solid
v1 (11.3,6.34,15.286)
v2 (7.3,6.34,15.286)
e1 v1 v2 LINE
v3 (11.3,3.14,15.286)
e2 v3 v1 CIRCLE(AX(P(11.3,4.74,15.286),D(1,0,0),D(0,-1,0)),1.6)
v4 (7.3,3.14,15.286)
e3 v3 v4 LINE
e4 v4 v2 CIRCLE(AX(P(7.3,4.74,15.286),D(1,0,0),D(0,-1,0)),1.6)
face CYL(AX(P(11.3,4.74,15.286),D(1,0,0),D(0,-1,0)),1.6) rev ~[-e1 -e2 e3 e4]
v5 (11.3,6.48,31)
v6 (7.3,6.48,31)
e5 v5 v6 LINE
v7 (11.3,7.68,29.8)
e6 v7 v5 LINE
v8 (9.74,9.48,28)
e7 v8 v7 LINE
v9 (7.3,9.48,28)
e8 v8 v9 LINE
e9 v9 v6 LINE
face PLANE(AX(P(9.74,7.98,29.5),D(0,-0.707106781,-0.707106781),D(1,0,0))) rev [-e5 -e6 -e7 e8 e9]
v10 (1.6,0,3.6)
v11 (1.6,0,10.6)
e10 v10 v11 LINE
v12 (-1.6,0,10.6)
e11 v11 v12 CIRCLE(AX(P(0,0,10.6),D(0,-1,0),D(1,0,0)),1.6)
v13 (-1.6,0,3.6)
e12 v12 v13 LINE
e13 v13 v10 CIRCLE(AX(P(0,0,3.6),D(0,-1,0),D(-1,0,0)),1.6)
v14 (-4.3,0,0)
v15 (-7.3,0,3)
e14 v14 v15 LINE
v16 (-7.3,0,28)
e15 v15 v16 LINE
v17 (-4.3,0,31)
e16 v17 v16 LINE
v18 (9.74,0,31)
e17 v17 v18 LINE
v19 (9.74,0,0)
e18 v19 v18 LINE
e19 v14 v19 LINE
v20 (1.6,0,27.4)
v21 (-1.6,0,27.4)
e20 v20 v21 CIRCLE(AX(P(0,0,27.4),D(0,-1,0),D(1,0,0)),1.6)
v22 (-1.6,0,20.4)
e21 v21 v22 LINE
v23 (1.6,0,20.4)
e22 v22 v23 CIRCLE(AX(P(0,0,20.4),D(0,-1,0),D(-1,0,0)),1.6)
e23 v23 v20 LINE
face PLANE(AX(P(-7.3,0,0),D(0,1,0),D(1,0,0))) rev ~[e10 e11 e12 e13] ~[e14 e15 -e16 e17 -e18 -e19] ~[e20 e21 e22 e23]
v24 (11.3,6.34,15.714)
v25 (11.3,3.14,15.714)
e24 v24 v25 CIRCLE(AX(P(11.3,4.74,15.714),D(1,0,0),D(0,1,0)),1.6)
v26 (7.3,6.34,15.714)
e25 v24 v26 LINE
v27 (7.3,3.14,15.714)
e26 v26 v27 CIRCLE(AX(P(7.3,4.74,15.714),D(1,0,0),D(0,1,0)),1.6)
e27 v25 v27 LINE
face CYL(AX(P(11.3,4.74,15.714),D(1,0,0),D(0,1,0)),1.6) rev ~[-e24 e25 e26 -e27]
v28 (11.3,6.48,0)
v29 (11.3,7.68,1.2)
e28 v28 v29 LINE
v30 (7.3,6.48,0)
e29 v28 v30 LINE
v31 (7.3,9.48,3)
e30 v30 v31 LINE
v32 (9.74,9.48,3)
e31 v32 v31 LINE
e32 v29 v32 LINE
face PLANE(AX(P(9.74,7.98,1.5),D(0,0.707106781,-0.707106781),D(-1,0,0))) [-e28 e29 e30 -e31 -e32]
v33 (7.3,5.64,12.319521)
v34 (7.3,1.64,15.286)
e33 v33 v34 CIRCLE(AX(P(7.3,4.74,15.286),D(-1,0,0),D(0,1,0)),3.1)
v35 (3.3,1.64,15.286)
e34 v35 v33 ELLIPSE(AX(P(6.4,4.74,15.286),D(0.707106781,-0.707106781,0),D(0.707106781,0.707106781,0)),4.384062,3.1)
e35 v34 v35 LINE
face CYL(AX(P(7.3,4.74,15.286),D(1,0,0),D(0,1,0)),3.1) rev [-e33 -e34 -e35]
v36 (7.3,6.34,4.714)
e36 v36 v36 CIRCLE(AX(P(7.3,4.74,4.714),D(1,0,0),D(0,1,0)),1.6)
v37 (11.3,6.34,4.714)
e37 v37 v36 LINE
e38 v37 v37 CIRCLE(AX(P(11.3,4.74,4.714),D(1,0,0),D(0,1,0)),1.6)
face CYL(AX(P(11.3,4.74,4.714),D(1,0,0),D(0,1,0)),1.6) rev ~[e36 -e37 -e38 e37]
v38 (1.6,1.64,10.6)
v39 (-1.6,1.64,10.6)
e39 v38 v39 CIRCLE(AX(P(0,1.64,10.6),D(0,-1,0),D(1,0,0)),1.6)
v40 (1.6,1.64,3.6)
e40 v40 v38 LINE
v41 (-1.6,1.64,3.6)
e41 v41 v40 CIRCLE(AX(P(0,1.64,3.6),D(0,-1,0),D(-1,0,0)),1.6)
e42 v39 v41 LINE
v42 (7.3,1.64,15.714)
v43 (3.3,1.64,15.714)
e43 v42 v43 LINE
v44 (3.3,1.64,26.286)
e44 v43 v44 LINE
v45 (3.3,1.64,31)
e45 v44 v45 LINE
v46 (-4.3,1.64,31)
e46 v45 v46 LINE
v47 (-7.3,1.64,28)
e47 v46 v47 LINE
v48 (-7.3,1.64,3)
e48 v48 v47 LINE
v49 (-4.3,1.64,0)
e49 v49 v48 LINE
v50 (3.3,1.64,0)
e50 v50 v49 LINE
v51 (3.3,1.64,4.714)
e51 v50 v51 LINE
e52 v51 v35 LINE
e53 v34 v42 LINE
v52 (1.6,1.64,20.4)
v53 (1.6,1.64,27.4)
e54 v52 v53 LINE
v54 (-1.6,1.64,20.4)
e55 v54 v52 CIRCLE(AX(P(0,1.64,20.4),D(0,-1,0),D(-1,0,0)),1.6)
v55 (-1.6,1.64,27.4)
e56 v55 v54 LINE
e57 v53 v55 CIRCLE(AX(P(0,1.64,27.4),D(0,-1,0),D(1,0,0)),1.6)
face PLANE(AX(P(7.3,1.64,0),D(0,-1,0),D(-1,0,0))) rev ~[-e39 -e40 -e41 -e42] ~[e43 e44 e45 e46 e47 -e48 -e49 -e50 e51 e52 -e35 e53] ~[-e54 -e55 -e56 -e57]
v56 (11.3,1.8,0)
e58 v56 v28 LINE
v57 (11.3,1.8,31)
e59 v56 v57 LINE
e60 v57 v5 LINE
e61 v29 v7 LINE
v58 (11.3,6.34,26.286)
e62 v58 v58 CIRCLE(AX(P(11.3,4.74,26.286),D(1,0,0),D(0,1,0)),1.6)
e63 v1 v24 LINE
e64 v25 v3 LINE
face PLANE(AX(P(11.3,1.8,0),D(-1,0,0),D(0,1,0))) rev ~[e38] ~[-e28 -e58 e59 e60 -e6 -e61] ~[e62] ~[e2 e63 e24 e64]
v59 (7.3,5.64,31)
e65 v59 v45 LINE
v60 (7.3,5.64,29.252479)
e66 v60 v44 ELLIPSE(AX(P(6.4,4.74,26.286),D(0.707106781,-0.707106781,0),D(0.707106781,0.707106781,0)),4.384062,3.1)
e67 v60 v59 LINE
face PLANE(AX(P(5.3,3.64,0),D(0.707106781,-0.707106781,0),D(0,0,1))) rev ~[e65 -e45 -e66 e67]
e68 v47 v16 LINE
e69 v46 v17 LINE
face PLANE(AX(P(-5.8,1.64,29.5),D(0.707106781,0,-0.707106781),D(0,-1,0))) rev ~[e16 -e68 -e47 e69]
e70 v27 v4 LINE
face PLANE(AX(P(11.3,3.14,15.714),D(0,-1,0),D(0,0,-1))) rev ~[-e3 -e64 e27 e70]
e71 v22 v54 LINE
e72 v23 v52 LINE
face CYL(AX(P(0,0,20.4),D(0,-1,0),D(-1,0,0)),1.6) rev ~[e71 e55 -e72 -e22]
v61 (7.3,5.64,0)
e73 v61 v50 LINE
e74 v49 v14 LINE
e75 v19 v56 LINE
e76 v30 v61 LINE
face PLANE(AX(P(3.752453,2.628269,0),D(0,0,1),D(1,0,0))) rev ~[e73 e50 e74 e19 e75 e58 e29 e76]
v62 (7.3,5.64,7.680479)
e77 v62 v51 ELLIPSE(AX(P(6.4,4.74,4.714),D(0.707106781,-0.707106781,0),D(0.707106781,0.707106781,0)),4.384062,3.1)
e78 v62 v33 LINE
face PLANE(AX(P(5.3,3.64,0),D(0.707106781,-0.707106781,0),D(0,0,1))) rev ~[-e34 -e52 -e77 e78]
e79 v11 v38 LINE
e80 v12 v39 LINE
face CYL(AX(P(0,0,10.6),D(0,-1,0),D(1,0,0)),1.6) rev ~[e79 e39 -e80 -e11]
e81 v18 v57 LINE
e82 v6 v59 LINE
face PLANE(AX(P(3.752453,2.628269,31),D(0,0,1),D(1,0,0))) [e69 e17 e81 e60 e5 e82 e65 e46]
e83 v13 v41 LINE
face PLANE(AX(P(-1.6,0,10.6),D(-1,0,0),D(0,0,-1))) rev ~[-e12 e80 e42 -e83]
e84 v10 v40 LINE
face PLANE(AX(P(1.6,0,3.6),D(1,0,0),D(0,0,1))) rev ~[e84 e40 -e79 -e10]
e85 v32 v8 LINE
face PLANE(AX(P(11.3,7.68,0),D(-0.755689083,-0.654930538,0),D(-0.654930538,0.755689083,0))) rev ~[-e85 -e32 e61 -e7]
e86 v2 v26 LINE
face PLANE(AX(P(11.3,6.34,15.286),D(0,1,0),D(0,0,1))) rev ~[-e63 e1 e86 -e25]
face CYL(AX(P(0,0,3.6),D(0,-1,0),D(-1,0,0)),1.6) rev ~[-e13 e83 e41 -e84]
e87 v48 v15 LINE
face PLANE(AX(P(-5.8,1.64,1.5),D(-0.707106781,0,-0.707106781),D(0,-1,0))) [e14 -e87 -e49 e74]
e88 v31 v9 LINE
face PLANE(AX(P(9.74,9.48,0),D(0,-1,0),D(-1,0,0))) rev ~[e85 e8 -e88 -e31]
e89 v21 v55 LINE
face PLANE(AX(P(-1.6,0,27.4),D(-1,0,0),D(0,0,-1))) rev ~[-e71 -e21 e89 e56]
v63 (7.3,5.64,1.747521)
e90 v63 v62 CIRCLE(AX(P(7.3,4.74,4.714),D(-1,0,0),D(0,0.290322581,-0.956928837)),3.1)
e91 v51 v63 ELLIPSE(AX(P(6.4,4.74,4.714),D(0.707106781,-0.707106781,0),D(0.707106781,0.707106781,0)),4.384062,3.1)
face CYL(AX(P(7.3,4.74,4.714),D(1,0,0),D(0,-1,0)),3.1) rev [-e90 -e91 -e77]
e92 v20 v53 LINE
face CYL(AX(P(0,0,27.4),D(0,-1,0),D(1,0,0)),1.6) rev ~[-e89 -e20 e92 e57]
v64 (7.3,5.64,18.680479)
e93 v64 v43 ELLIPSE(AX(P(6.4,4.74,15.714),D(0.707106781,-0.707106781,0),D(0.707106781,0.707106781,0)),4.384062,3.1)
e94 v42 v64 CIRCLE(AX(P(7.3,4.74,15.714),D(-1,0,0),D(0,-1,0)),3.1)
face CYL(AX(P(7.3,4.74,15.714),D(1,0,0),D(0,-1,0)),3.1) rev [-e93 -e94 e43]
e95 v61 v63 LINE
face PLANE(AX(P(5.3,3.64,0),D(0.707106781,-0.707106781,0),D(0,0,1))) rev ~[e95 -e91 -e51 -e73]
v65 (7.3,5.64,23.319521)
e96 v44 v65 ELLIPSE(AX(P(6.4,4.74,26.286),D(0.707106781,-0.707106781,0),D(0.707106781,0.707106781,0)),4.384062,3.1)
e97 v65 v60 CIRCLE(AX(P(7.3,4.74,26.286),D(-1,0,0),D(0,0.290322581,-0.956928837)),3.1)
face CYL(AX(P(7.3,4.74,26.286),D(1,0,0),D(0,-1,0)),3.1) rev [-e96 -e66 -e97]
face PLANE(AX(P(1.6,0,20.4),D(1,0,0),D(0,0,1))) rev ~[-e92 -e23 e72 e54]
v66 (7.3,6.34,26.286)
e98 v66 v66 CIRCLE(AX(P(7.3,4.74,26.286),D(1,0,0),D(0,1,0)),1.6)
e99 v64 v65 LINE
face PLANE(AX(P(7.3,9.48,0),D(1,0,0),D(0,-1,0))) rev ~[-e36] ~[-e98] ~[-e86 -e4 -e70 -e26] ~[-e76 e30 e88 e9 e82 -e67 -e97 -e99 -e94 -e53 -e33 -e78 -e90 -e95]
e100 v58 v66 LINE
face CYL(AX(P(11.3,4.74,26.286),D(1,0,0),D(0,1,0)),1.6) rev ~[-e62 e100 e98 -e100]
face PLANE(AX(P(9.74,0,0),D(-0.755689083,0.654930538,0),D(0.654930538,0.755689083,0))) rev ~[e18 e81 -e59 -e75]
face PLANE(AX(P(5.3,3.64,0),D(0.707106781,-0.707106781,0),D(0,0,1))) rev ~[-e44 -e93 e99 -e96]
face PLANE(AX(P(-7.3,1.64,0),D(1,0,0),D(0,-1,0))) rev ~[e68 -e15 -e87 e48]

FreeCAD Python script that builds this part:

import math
import FreeCAD as App
import Part
import Sketcher

V = App.Vector


def edges_at(feature, points):
    """Names of the edges that pass closest to the given points."""
    edges = feature.Shape.Edges
    near = lambda p: min(range(len(edges)), key=lambda i: edges[i].distToShape(Part.Vertex(*p))[0])
    return sorted({f"Edge{near(p) + 1}" for p in points})


def add_polygon(sketch, points):
    """Adds a closed chain of lines whose ends are joined by coincident constraints."""
    first, n = sketch.GeometryCount, len(points)
    for a, b in zip(points, points[1:] + points[:1]):
        sketch.addGeometry(Part.LineSegment(App.Vector(*a, 0), App.Vector(*b, 0)), False)
    for i in range(n):
        sketch.addConstraint(Sketcher.Constraint("Coincident", first + i, 2, first + (i + 1) % n, 1))

doc = App.newDocument("Part")
body = doc.addObject("PartDesign::Body", "Body")

sketch1 = doc.addObject("Sketcher::SketchObject", "Sketch")
body.addObject(sketch1)
sketch1.AttachmentSupport = (doc.XY_Plane, [""])
sketch1.MapMode = "FlatFace"
add_polygon(sketch1, [(-7.3, 1.6), (-7.3, 0), (9.7, 0), (11.3, 1.8), (11.3, 7.7), (9.7, 9.5), (7.3, 9.5), (7.3, 1.6)])
sketch1.addConstraint([
    Sketcher.Constraint("Vertical", 0),
    Sketcher.Constraint("Horizontal", 1),
    Sketcher.Constraint("Vertical", 3),
    Sketcher.Constraint("Horizontal", 5),
    Sketcher.Constraint("Vertical", 6),
    Sketcher.Constraint("Horizontal", 7),
    Sketcher.Constraint("PointOnObject", 0, 2, -1),
    Sketcher.Constraint("Vertical", 1, 2, 4, 2),
    Sketcher.Constraint("Equal", 2, 4),
    Sketcher.Constraint("DistanceX", 7, 2, 7, 1, 14.6),
    Sketcher.Constraint("DistanceX", 5, 2, 3, 2, 4.0),
    Sketcher.Constraint("DistanceX", 1, 1, 1, 2, 17.04),
    Sketcher.Constraint("DistanceY", 0, 2, 0, 1, 1.64),
    Sketcher.Constraint("DistanceY", 3, 1, 3, 2, 5.88),
    Sketcher.Constraint("DistanceY", 6, 2, 6, 1, 7.84),
    Sketcher.Constraint("DistanceX", 0, 2, -1, 1, 7.3),
])
pad1 = doc.addObject("PartDesign::Pad", "Pad")
body.addObject(pad1)
pad1.Profile = sketch1
pad1.Length = 31
doc.recompute()

chamfer = doc.addObject("PartDesign::Chamfer", "Chamfer")
body.addObject(chamfer)
chamfer.Base = (pad1, edges_at(pad1, [(7.3, 1.64, 15.5)]))
chamfer.Size = 4

sketch2 = doc.addObject("Sketcher::SketchObject", "Sketch001")
body.addObject(sketch2)
sketch2.AttachmentSupport = (doc.YZ_Plane, [""])
sketch2.MapMode = "FlatFace"
sketch2.AttachmentOffset = App.Placement(V(0, 0, 11.3), App.Rotation())
sketch2.addGeometry([
    Part.Circle(V(4.74, 26.29, 0), V(0, 0, 1), 1.6),
    Part.Circle(V(4.74, 4.71, 0), V(0, 0, 1), 1.6),
    Part.ArcOfCircle(Part.Circle(V(4.74, 15.71, 0), V(0, 0, 1), 1.6), math.radians(0), math.radians(180)),
    Part.LineSegment(V(3.14, 15.71, 0), V(3.14, 15.29, 0)),
    Part.ArcOfCircle(Part.Circle(V(4.74, 15.29, 0), V(0, 0, 1), 1.6), math.radians(180), math.radians(360)),
    Part.LineSegment(V(6.34, 15.29, 0), V(6.34, 15.71, 0)),
], False)
sketch2.addConstraint([
    Sketcher.Constraint("Tangent", 2, 2, 3, 1),
    Sketcher.Constraint("Tangent", 3, 2, 4, 1),
    Sketcher.Constraint("Tangent", 4, 2, 5, 1),
    Sketcher.Constraint("Tangent", 5, 2, 2, 1),
    Sketcher.Constraint("Vertical", 3),
    Sketcher.Constraint("Vertical", 5),
    Sketcher.Constraint("Equal", 0, 1),
    Sketcher.Constraint("Equal", 1, 2),
    Sketcher.Constraint("Vertical", 0, 3, 1, 3),
    Sketcher.Constraint("Vertical", 1, 3, 2, 3),
    Sketcher.Constraint("Diameter", 0, 3.2),
    Sketcher.Constraint("DistanceY", 1, 3, 2, 3, 11.0),
    Sketcher.Constraint("DistanceY", 4, 3, 0, 3, 11.0),
    Sketcher.Constraint("DistanceY", 3, 2, 3, 1, 0.428),
    Sketcher.Constraint("DistanceX", -1, 1, 0, 3, 4.74),
    Sketcher.Constraint("DistanceY", -1, 1, 0, 3, 26.286),
])
pocket1 = doc.addObject("PartDesign::Pocket", "Pocket")
body.addObject(pocket1)
pocket1.Profile = sketch2
pocket1.Length = 18.6

sketch3 = doc.addObject("Sketcher::SketchObject", "Sketch002")
body.addObject(sketch3)
sketch3.AttachmentSupport = (doc.YZ_Plane, [""])
sketch3.MapMode = "FlatFace"
sketch3.AttachmentOffset = App.Placement(V(0, 0, 7.3), App.Rotation())
sketch3.addGeometry([
    Part.Circle(V(4.74, 26.29, 0), V(0, 0, 1), 3.1),
    Part.Circle(V(4.74, 4.71, 0), V(0, 0, 1), 3.1),
    Part.ArcOfCircle(Part.Circle(V(4.74, 15.71, 0), V(0, 0, 1), 3.1), math.radians(0), math.radians(180)),
    Part.LineSegment(V(7.84, 15.71, 0), V(7.84, 15.29, 0)),
    Part.ArcOfCircle(Part.Circle(V(4.74, 15.29, 0), V(0, 0, 1), 3.1), math.radians(180), math.radians(360)),
    Part.LineSegment(V(1.64, 15.29, 0), V(1.64, 15.71, 0)),
], False)
sketch3.addConstraint([
    Sketcher.Constraint("Tangent", 2, 1, 3, 1),
    Sketcher.Constraint("Tangent", 3, 2, 4, 2),
    Sketcher.Constraint("Tangent", 4, 1, 5, 1),
    Sketcher.Constraint("Tangent", 5, 2, 2, 2),
    Sketcher.Constraint("Vertical", 3),
    Sketcher.Constraint("Vertical", 5),
    Sketcher.Constraint("Equal", 0, 1),
    Sketcher.Constraint("Equal", 1, 2),
    Sketcher.Constraint("Vertical", 0, 3, 1, 3),
    Sketcher.Constraint("Vertical", 1, 3, 2, 3),
    Sketcher.Constraint("Diameter", 0, 6.2),
    Sketcher.Constraint("DistanceY", 1, 3, 2, 3, 11.0),
    Sketcher.Constraint("DistanceY", 4, 3, 0, 3, 11.0),
    Sketcher.Constraint("DistanceY", 3, 2, 3, 1, 0.428),
    Sketcher.Constraint("DistanceX", -1, 1, 0, 3, 4.74),
    Sketcher.Constraint("DistanceY", -1, 1, 0, 3, 26.286),
])
pocket2 = doc.addObject("PartDesign::Pocket", "Pocket001")
body.addObject(pocket2)
pocket2.Profile = sketch3
pocket2.Length = 14.6

sketch4 = doc.addObject("Sketcher::SketchObject", "Sketch003")
body.addObject(sketch4)
sketch4.AttachmentSupport = (doc.XZ_Plane, [""])
sketch4.MapMode = "FlatFace"
sketch4.addGeometry([
    Part.ArcOfCircle(Part.Circle(V(0, 27.4, 0), V(0, 0, 1), 1.6), math.radians(0), math.radians(180)),
    Part.LineSegment(V(-1.6, 27.4, 0), V(-1.6, 20.4, 0)),
    Part.ArcOfCircle(Part.Circle(V(0, 20.4, 0), V(0, 0, 1), 1.6), math.radians(180), math.radians(360)),
    Part.LineSegment(V(1.6, 20.4, 0), V(1.6, 27.4, 0)),
    Part.ArcOfCircle(Part.Circle(V(0, 10.6, 0), V(0, 0, 1), 1.6), math.radians(0), math.radians(180)),
    Part.LineSegment(V(-1.6, 10.6, 0), V(-1.6, 3.6, 0)),
    Part.ArcOfCircle(Part.Circle(V(0, 3.6, 0), V(0, 0, 1), 1.6), math.radians(180), math.radians(360)),
    Part.LineSegment(V(1.6, 3.6, 0), V(1.6, 10.6, 0)),
], False)
sketch4.addConstraint([
    Sketcher.Constraint("Tangent", 0, 2, 1, 1),
    Sketcher.Constraint("Tangent", 1, 2, 2, 1),
    Sketcher.Constraint("Tangent", 2, 2, 3, 1),
    Sketcher.Constraint("Tangent", 3, 2, 0, 1),
    Sketcher.Constraint("Tangent", 4, 2, 5, 1),
    Sketcher.Constraint("Tangent", 5, 2, 6, 1),
    Sketcher.Constraint("Tangent", 6, 2, 7, 1),
    Sketcher.Constraint("Tangent", 7, 2, 4, 1),
    Sketcher.Constraint("Vertical", 1),
    Sketcher.Constraint("Vertical", 3),
    Sketcher.Constraint("Vertical", 5),
    Sketcher.Constraint("Vertical", 7),
    Sketcher.Constraint("Equal", 2, 4),
    Sketcher.Constraint("PointOnObject", 0, 3, -2),
    Sketcher.Constraint("PointOnObject", 4, 3, -2),
    Sketcher.Constraint("Equal", 3, 5),
    Sketcher.Constraint("Radius", 0, 1.6),
    Sketcher.Constraint("DistanceY", 1, 2, 1, 1, 7.0),
    Sketcher.Constraint("DistanceY", -1, 1, 0, 3, 27.4),
    Sketcher.Constraint("DistanceY", -1, 1, 4, 3, 10.6),
])
pocket3 = doc.addObject("PartDesign::Pocket", "Pocket002")
body.addObject(pocket3)
pocket3.Profile = sketch4
pocket3.Length = 9.48
doc.recompute()

chamfer2 = doc.addObject("PartDesign::Chamfer", "Chamfer001")
body.addObject(chamfer2)
chamfer2.Base = (pocket3, edges_at(pocket3, [
    (8.52, 9.48, 31),
    (8.52, 9.48, 0),
    (-7.3, 0.82, 0),
    (-7.3, 0.82, 31),
]))
chamfer2.Size = 3

doc.recompute()
